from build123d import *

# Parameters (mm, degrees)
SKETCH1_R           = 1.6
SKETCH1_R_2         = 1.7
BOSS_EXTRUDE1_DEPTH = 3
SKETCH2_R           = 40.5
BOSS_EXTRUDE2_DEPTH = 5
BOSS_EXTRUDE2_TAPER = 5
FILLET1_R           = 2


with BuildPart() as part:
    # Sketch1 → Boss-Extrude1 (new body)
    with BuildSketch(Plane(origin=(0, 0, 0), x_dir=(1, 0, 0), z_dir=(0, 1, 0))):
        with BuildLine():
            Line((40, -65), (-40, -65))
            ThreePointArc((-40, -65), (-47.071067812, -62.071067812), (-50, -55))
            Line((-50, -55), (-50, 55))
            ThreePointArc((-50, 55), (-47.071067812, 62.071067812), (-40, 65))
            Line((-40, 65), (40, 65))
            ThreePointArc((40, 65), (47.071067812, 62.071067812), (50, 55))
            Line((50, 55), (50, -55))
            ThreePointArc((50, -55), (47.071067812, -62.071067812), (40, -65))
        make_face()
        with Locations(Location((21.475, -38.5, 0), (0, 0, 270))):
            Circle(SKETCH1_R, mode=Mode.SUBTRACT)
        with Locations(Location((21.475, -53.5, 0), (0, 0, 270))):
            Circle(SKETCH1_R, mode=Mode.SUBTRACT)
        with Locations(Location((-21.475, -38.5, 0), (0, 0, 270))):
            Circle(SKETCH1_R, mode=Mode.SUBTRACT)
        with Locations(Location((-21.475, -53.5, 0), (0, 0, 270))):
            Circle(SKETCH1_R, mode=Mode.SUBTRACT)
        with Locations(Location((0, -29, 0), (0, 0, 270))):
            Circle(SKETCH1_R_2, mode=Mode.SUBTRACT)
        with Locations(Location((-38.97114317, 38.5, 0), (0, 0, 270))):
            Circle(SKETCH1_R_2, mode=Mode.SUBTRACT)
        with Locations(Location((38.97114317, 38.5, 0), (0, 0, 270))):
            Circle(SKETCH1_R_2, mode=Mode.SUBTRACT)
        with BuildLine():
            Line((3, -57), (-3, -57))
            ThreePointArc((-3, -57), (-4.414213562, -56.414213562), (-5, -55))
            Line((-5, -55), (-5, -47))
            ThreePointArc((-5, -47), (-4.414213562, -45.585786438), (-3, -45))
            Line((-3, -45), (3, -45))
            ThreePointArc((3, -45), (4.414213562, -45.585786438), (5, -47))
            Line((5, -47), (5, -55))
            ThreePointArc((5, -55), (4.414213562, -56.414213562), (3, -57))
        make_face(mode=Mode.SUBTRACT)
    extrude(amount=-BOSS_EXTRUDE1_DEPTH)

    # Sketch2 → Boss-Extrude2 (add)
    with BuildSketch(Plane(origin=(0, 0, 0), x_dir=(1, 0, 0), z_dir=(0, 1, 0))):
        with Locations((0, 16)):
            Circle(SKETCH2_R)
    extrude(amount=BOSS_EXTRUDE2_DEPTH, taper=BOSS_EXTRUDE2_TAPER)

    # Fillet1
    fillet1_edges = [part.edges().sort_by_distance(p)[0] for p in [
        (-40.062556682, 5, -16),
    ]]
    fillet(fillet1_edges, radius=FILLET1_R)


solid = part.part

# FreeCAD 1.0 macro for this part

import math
import FreeCAD as App
import Part
import Sketcher


def edges_at(feature, points):
    """Names of the edges that pass closest to the given points."""
    edges = feature.Shape.Edges
    near = lambda p: min(range(len(edges)), key=lambda i: edges[i].distToShape(Part.Vertex(*p))[0])
    return sorted({f"Edge{near(p) + 1}" for p in points})

doc = App.newDocument("Part")
body = doc.addObject("PartDesign::Body", "Body")

# Sketch on XZ plane
sketch1 = body.newObject("Sketcher::SketchObject", "Sketch")
sketch1.AttachmentSupport = (doc.getObject("XZ_Plane"), [""])
sketch1.MapMode = "FlatFace"
sketch1.addGeometry([
    Part.LineSegment(App.Vector(-40, 65, 0), App.Vector(40, 65, 0)),  # 0
    Part.ArcOfCircle(Part.Circle(App.Vector(40, 55, 0), App.Vector(0, 0, 1), 10), math.radians(0), math.radians(90)),  # 1
    Part.LineSegment(App.Vector(50, 55, 0), App.Vector(50, -55, 0)),  # 2
    Part.ArcOfCircle(Part.Circle(App.Vector(40, -55, 0), App.Vector(0, 0, 1), 10), math.radians(-90), math.radians(0)),  # 3
    Part.LineSegment(App.Vector(40, -65, 0), App.Vector(-40, -65, 0)),  # 4
    Part.ArcOfCircle(Part.Circle(App.Vector(-40, -55, 0), App.Vector(0, 0, 1), 10), math.radians(180), math.radians(270)),  # 5
    Part.LineSegment(App.Vector(-50, -55, 0), App.Vector(-50, 55, 0)),  # 6
    Part.ArcOfCircle(Part.Circle(App.Vector(-40, 55, 0), App.Vector(0, 0, 1), 10), math.radians(90), math.radians(180)),  # 7
    Part.Circle(App.Vector(21.5, 53.5, 0), App.Vector(0, 0, 1), 1.6),  # 8
    Part.Circle(App.Vector(21.5, 38.5, 0), App.Vector(0, 0, 1), 1.6),  # 9
    Part.LineSegment(App.Vector(3, 57, 0), App.Vector(-3, 57, 0)),  # 10
    Part.ArcOfCircle(Part.Circle(App.Vector(-3, 55, 0), App.Vector(0, 0, 1), 2), math.radians(90), math.radians(180)),  # 11
    Part.LineSegment(App.Vector(-5, 55, 0), App.Vector(-5, 47, 0)),  # 12
    Part.ArcOfCircle(Part.Circle(App.Vector(-3, 47, 0), App.Vector(0, 0, 1), 2), math.radians(-180), math.radians(-90)),  # 13
    Part.LineSegment(App.Vector(-3, 45, 0), App.Vector(3, 45, 0)),  # 14
    Part.ArcOfCircle(Part.Circle(App.Vector(3, 47, 0), App.Vector(0, 0, 1), 2), math.radians(-90), math.radians(0)),  # 15
    Part.LineSegment(App.Vector(5, 47, 0), App.Vector(5, 55, 0)),  # 16
    Part.ArcOfCircle(Part.Circle(App.Vector(3, 55, 0), App.Vector(0, 0, 1), 2), math.radians(0), math.radians(90)),  # 17
    Part.Circle(App.Vector(-21.5, 53.5, 0), App.Vector(0, 0, 1), 1.6),  # 18
    Part.Circle(App.Vector(-21.5, 38.5, 0), App.Vector(0, 0, 1), 1.6),  # 19
    Part.Circle(App.Vector(0, 29, 0), App.Vector(0, 0, 1), 1.7),  # 20
    Part.Circle(App.Vector(39, -38.5, 0), App.Vector(0, 0, 1), 1.7),  # 21
    Part.Circle(App.Vector(-39, -38.5, 0), App.Vector(0, 0, 1), 1.7),  # 22
], False)
sketch1.addConstraint([
    Sketcher.Constraint("Tangent", 0, 2, 1, 2),
    Sketcher.Constraint("Tangent", 1, 1, 2, 1),
    Sketcher.Constraint("Tangent", 2, 2, 3, 2),
    Sketcher.Constraint("Tangent", 3, 1, 4, 1),
    Sketcher.Constraint("Tangent", 4, 2, 5, 2),
    Sketcher.Constraint("Tangent", 5, 1, 6, 1),
    Sketcher.Constraint("Tangent", 6, 2, 7, 2),
    Sketcher.Constraint("Tangent", 7, 1, 0, 1),
    Sketcher.Constraint("Tangent", 10, 2, 11, 1),
    Sketcher.Constraint("Tangent", 11, 2, 12, 1),
    Sketcher.Constraint("Tangent", 12, 2, 13, 1),
    Sketcher.Constraint("Tangent", 13, 2, 14, 1),
    Sketcher.Constraint("Tangent", 14, 2, 15, 1),
    Sketcher.Constraint("Tangent", 15, 2, 16, 1),
    Sketcher.Constraint("Tangent", 16, 2, 17, 1),
    Sketcher.Constraint("Tangent", 17, 2, 10, 1),
    Sketcher.Constraint("Horizontal", 0),
    Sketcher.Constraint("Vertical", 2),
    Sketcher.Constraint("Horizontal", 4),
    Sketcher.Constraint("Vertical", 6),
    Sketcher.Constraint("Horizontal", 10),
    Sketcher.Constraint("Vertical", 12),
    Sketcher.Constraint("Horizontal", 14),
    Sketcher.Constraint("Vertical", 16),
    Sketcher.Constraint("Equal", 1, 3),
    Sketcher.Constraint("Equal", 3, 5),
    Sketcher.Constraint("Equal", 5, 7),
    Sketcher.Constraint("Equal", 8, 9),
    Sketcher.Constraint("Equal", 11, 13),
    Sketcher.Constraint("Equal", 13, 15),
    Sketcher.Constraint("Equal", 15, 17),
    Sketcher.Constraint("Equal", 9, 18),
    Sketcher.Constraint("Equal", 18, 19),
    Sketcher.Constraint("Equal", 20, 21),
    Sketcher.Constraint("Equal", 21, 22),
    Sketcher.Constraint("Symmetric", 1, 3, 5, 3, -1, 1),
    Sketcher.Constraint("Symmetric", 8, 3, 18, 3, -2),
    Sketcher.Constraint("Symmetric", 9, 3, 19, 3, -2),
    Sketcher.Constraint("Symmetric", 21, 3, 22, 3, -2),
    Sketcher.Constraint("PointOnObject", 20, 3, -2),
    Sketcher.Constraint("Horizontal", 7, 3, 11, 3),
    Sketcher.Constraint("Vertical", 8, 3, 9, 3),
    Sketcher.Constraint("Radius", 1, 10.0),
    Sketcher.Constraint("Radius", 11, 2.0),
    Sketcher.Constraint("Diameter", 8, 3.2),
    Sketcher.Constraint("Diameter", 20, 3.4),
    Sketcher.Constraint("DistanceX", 0, 1, 0, 2, 80.0),
    Sketcher.Constraint("DistanceX", 10, 2, 10, 1, 6.0),
    Sketcher.Constraint("DistanceY", 2, 2, 2, 1, 110.0),
    Sketcher.Constraint("DistanceY", 12, 2, 12, 1, 8.0),
    Sketcher.Constraint("DistanceX", 11, 3, -1, 1, 3.0),
    Sketcher.Constraint("DistanceY", -1, 1, 20, 3, 29.0),
    Sketcher.Constraint("DistanceY", 9, 3, 8, 3, 15.0),
    Sketcher.Constraint("DistanceY", 21, 3, 9, 3, 77.0),
    Sketcher.Constraint("DistanceY", -1, 1, 8, 3, 53.5),
    Sketcher.Constraint("DistanceX", -1, 1, 8, 3, 21.475),
    Sketcher.Constraint("DistanceX", -1, 1, 21, 3, 38.971143),
])
pad1 = body.newObject("PartDesign::Pad", "Pad")
pad1.Profile = sketch1
pad1.Length = 3

# Sketch on XZ plane
sketch2 = body.newObject("Sketcher::SketchObject", "Sketch001")
sketch2.AttachmentSupport = (doc.getObject("XZ_Plane"), [""])
sketch2.MapMode = "FlatFace"
sketch2.addGeometry(Part.Circle(App.Vector(0, -16, 0), App.Vector(0, 0, 1), 40), False)
sketch2.addConstraint([
    Sketcher.Constraint("PointOnObject", 0, 3, -2),
    Sketcher.Constraint("Diameter", 0, 81.0),
    Sketcher.Constraint("DistanceY", 0, 3, -1, 1, 16.0),
])
pad2 = body.newObject("PartDesign::Pad", "Pad001")
pad2.Profile = sketch2
pad2.Length = 5
pad2.Reversed = True
pad2.TaperAngle = -5
doc.recompute()

fillet = body.newObject("PartDesign::Fillet", "Fillet")
fillet.Base = (pad2, edges_at(pad2, [(-40.063, 5, -16)]))
fillet.Radius = 2

doc.recompute()
